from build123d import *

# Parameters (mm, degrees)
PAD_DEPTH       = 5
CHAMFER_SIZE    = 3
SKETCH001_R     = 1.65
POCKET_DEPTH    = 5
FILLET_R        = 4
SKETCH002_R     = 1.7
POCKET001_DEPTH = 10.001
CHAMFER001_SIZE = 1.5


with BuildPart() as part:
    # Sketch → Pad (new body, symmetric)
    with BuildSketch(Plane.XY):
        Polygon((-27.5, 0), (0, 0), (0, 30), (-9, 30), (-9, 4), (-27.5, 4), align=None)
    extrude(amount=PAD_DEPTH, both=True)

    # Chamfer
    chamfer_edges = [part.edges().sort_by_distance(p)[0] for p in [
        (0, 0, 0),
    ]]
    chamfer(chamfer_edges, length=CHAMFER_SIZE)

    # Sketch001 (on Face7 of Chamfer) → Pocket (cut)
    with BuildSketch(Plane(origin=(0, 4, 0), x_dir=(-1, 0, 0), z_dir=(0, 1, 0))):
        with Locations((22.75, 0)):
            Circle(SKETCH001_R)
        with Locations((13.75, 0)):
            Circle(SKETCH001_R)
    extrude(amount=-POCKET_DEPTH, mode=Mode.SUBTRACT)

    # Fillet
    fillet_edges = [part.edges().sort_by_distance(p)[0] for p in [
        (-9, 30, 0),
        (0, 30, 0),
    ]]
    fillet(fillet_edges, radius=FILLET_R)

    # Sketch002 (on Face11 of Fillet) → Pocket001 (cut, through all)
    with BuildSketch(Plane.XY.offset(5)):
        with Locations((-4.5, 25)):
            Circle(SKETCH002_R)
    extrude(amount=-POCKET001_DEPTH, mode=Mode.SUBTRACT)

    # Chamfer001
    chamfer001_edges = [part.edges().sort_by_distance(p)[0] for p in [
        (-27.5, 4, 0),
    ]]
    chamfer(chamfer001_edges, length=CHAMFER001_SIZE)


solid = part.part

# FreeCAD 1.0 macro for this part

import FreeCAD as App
import Part
import Sketcher
from FreeCAD import Vector


def edges_at(feature, points):
    """Names of the edges that pass closest to the given points."""
    edges = feature.Shape.Edges
    near = lambda p: min(range(len(edges)), key=lambda i: edges[i].distToShape(Part.Vertex(*p))[0])
    return sorted({f"Edge{near(p) + 1}" for p in points})

doc = App.newDocument("Part")
body = doc.addObject("PartDesign::Body", "Body")

sketch1 = body.newObject("Sketcher::SketchObject", "Sketch")
sketch1.AttachmentSupport = (doc.getObject("XY_Plane"), [""])
sketch1.MapMode = "FlatFace"
sketch1.addGeometry([
    Part.LineSegment(Vector(-27.5, 0, 0), Vector(0, 0, 0)),
    Part.LineSegment(Vector(0, 0, 0), Vector(0, 30, 0)),
    Part.LineSegment(Vector(0, 30, 0), Vector(-9, 30, 0)),
    Part.LineSegment(Vector(-9, 30, 0), Vector(-9, 4, 0)),
    Part.LineSegment(Vector(-9, 4, 0), Vector(-27.5, 4, 0)),
    Part.LineSegment(Vector(-27.5, 4, 0), Vector(-27.5, 0, 0)),
], False)
sketch1.addConstraint([
    Sketcher.Constraint("Coincident", 0, 2, 1, 1),
    Sketcher.Constraint("Coincident", 1, 2, 2, 1),
    Sketcher.Constraint("Coincident", 2, 2, 3, 1),
    Sketcher.Constraint("Coincident", 3, 2, 4, 1),
    Sketcher.Constraint("Coincident", 4, 2, 5, 1),
    Sketcher.Constraint("Coincident", 5, 2, 0, 1),
    Sketcher.Constraint("Horizontal", 0),
    Sketcher.Constraint("Vertical", 1),
    Sketcher.Constraint("Horizontal", 2),
    Sketcher.Constraint("Vertical", 3),
    Sketcher.Constraint("Horizontal", 4),
    Sketcher.Constraint("Vertical", 5),
    Sketcher.Constraint("Coincident", 0, 2, -1, 1),
    Sketcher.Constraint("DistanceX", 2, 2, 2, 1, 9.0),
    Sketcher.Constraint("DistanceY", 1, 1, 1, 2, 30.0),
    Sketcher.Constraint("DistanceY", 3, 2, 3, 1, 26.0),
    Sketcher.Constraint("DistanceX", 0, 1, 0, 2, 27.5),
])
pad1 = body.newObject("PartDesign::Pad", "Pad")
pad1.Profile = sketch1
pad1.Length = 10
pad1.Midplane = True
doc.recompute()

chamfer = body.newObject("PartDesign::Chamfer", "Chamfer")
chamfer.Base = (pad1, edges_at(pad1, [(0, 0, 0)]))
chamfer.Size = 3

sketch2 = body.newObject("Sketcher::SketchObject", "Sketch001")
sketch2.AttachmentSupport = (doc.getObject("XZ_Plane"), [""])
sketch2.MapMode = "FlatFace"
sketch2.AttachmentOffset = App.Placement(Vector(0, 0, -4), App.Rotation())
sketch2.addGeometry([
    Part.Circle(Vector(-22.8, 0, 0), Vector(0, 0, 1), 1.6),
    Part.Circle(Vector(-13.8, 0, 0), Vector(0, 0, 1), 1.6),
], False)
sketch2.addConstraint([
    Sketcher.Constraint("Equal", 0, 1),
    Sketcher.Constraint("PointOnObject", 0, 3, -1),
    Sketcher.Constraint("PointOnObject", 1, 3, -1),
    Sketcher.Constraint("Diameter", 0, 3.3),
    Sketcher.Constraint("DistanceX", 0, 3, 1, 3, 9.0),
    Sketcher.Constraint("DistanceX", 0, 3, -1, 1, 22.75),
])
pocket1 = body.newObject("PartDesign::Pocket", "Pocket")
pocket1.Profile = sketch2
pocket1.Length = 5
pocket1.Reversed = True
doc.recompute()

fillet = body.newObject("PartDesign::Fillet", "Fillet")
fillet.Base = (pocket1, edges_at(pocket1, [(-9, 30, 0), (0, 30, 0)]))
fillet.Radius = 4

sketch3 = body.newObject("Sketcher::SketchObject", "Sketch002")
sketch3.AttachmentSupport = (doc.getObject("XY_Plane"), [""])
sketch3.MapMode = "FlatFace"
sketch3.AttachmentOffset = App.Placement(Vector(0, 0, 5), App.Rotation())
sketch3.addGeometry(Part.Circle(Vector(-4.5, 25, 0), Vector(0, 0, 1), 1.7), False)
sketch3.addConstraint([
    Sketcher.Constraint("Diameter", 0, 3.4),
    Sketcher.Constraint("DistanceY", -1, 1, 0, 3, 25.0),
    Sketcher.Constraint("DistanceX", 0, 3, -1, 1, 4.5),
])
pocket2 = body.newObject("PartDesign::Pocket", "Pocket001")
pocket2.Profile = sketch3
pocket2.Type = "ThroughAll"
doc.recompute()

chamfer2 = body.newObject("PartDesign::Chamfer", "Chamfer001")
chamfer2.Base = (pocket2, edges_at(pocket2, [(-27.5, 4, 0)]))
chamfer2.Size = 1.5

doc.recompute()
